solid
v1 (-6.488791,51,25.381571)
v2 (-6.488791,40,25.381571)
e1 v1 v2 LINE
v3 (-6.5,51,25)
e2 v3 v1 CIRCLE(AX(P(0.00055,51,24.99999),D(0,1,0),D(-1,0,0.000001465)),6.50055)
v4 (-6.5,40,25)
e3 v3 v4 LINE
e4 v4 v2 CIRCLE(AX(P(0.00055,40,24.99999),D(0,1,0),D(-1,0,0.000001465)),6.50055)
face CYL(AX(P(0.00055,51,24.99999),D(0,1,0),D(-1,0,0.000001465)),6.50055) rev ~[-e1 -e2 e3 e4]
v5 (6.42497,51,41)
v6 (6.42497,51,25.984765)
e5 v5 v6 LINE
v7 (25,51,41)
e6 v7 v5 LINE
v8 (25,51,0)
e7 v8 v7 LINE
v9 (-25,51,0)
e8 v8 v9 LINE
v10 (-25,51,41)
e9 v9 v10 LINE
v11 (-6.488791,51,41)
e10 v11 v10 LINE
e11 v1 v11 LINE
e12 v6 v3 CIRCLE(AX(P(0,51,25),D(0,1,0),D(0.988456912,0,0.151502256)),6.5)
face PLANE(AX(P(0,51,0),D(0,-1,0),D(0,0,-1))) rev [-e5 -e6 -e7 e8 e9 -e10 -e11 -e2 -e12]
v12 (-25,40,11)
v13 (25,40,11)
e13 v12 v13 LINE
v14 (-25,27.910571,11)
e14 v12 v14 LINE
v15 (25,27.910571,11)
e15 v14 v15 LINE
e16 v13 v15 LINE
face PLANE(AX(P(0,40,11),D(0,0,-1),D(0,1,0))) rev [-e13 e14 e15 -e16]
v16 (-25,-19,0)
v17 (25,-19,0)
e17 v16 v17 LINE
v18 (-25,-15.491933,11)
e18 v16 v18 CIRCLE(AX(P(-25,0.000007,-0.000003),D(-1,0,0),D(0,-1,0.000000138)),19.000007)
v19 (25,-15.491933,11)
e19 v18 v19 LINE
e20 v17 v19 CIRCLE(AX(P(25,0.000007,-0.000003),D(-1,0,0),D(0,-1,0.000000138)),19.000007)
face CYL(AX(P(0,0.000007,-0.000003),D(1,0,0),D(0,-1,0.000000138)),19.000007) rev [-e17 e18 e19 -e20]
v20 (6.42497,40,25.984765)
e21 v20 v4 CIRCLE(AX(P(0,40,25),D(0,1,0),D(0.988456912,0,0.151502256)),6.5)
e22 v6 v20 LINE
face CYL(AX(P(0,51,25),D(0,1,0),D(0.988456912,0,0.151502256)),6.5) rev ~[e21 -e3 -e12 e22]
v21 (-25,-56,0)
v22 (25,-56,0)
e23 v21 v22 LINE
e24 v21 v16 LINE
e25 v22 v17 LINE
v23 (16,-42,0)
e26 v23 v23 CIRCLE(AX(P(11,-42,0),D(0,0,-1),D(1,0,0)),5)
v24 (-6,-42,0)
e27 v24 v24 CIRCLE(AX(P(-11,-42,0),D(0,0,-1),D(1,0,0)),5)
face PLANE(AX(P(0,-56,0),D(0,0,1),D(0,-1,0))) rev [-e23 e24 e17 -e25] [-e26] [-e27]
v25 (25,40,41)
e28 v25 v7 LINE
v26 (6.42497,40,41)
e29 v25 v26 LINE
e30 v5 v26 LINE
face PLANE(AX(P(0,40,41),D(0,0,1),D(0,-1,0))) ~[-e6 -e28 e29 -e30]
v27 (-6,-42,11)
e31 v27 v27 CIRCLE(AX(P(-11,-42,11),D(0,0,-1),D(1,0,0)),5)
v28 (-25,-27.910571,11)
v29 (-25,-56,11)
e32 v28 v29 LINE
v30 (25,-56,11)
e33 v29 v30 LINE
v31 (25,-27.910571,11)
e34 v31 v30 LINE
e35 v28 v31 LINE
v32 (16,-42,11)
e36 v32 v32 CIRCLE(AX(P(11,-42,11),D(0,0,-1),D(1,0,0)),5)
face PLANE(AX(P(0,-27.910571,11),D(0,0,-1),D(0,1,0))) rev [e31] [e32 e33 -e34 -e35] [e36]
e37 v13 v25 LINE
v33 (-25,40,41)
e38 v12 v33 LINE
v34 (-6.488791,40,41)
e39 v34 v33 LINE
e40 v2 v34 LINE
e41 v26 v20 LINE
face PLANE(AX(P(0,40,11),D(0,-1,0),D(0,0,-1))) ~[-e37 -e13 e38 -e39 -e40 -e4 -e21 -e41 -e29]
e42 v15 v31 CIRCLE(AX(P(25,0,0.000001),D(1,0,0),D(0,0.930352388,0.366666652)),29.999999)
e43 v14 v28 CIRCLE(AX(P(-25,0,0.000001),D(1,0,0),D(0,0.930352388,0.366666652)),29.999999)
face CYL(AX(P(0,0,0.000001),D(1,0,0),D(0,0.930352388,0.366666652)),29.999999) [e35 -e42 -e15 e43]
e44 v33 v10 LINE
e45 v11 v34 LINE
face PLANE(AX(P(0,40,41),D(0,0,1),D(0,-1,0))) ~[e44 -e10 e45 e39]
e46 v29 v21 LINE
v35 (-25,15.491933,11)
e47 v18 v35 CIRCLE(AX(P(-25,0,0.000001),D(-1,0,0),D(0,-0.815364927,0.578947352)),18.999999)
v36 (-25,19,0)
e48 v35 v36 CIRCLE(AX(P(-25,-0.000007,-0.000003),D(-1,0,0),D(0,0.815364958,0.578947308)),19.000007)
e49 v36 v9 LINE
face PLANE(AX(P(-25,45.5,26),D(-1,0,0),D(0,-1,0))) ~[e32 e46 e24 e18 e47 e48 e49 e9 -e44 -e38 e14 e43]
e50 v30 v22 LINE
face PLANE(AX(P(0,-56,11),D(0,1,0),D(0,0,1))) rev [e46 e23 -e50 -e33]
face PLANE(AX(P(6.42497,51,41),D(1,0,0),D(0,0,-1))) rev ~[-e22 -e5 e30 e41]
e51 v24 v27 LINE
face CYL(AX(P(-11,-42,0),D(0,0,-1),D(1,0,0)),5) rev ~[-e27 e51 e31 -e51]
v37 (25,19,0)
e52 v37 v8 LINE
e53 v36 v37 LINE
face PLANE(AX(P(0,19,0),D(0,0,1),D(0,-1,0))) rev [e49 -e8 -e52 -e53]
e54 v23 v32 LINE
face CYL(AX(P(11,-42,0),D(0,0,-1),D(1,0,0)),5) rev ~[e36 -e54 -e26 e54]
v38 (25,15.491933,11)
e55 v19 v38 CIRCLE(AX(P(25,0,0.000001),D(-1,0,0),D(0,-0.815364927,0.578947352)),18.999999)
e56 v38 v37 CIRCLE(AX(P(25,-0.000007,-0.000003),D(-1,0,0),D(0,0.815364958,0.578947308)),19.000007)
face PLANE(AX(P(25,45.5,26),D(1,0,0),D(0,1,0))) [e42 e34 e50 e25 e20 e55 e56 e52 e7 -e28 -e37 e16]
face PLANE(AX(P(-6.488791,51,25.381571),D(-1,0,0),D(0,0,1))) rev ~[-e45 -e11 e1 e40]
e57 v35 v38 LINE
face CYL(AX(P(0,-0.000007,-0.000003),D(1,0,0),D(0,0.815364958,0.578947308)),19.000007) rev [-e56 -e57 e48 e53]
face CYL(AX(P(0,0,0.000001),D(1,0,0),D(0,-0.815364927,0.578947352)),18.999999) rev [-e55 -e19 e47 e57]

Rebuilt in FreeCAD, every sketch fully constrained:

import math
import FreeCAD as App
import Part
import Sketcher
from FreeCAD import Vector
Q = App.Units.Quantity

doc = App.newDocument("Part")
body = doc.addObject("PartDesign::Body", "Body")

sketch1 = body.newObject("Sketcher::SketchObject", "Sketch")
sketch1.AttachmentSupport = (doc.getObject("YZ_Plane"), [""])
sketch1.MapMode = "FlatFace"
sketch1.addGeometry([
    Part.LineSegment(Vector(40, 41, 0), Vector(40, 11, 0)),
    Part.LineSegment(Vector(40, 11, 0), Vector(27.910571, 11, 0)),
    Part.ArcOfCircle(Part.Circle(Vector(0, 0.000001, 0), Vector(0, 0, 1), 29.999999), math.radians(21.510187), math.radians(158.489813)),
    Part.LineSegment(Vector(-27.910571, 11, 0), Vector(-56, 11, 0)),
    Part.LineSegment(Vector(-56, 11, 0), Vector(-56, 0, 0)),
    Part.LineSegment(Vector(-56, 0, 0), Vector(-19, 0, 0)),
    Part.ArcOfCircle(Part.Circle(Vector(0.000007, -0.000003, 0), Vector(0, 0, 1), 19.000007), math.radians(144.623464), math.radians(179.999992)),
    Part.ArcOfCircle(Part.Circle(Vector(0, 0.000001, 0), Vector(0, 0, 1), 18.999999), math.radians(35.376539), math.radians(144.623461)),
    Part.ArcOfCircle(Part.Circle(Vector(-0.000007, -0.000003, 0), Vector(0, 0, 1), 19.000007), math.radians(0.000008), math.radians(35.376536)),
    Part.LineSegment(Vector(19, 0, 0), Vector(51, 0, 0)),
    Part.LineSegment(Vector(51, 0, 0), Vector(51, 41, 0)),
    Part.LineSegment(Vector(51, 41, 0), Vector(40, 41, 0)),
], False)
sketch1.addConstraint([
    Sketcher.Constraint("Coincident", 0, 2, 1, 1),
    Sketcher.Constraint("Coincident", 1, 2, 2, 1),
    Sketcher.Constraint("Coincident", 2, 2, 3, 1),
    Sketcher.Constraint("Coincident", 3, 2, 4, 1),
    Sketcher.Constraint("Coincident", 4, 2, 5, 1),
    Sketcher.Constraint("Coincident", 5, 2, 6, 2),
    Sketcher.Constraint("Tangent", 6, 1, 7, 2),
    Sketcher.Constraint("Tangent", 7, 1, 8, 2),
    Sketcher.Constraint("Coincident", 8, 1, 9, 1),
    Sketcher.Constraint("Coincident", 9, 2, 10, 1),
    Sketcher.Constraint("Coincident", 10, 2, 11, 1),
    Sketcher.Constraint("Coincident", 11, 2, 0, 1),
    Sketcher.Constraint("Vertical", 0),
    Sketcher.Constraint("Horizontal", 1),
    Sketcher.Constraint("Horizontal", 3),
    Sketcher.Constraint("Vertical", 4),
    Sketcher.Constraint("Horizontal", 5),
    Sketcher.Constraint("Horizontal", 9),
    Sketcher.Constraint("Vertical", 10),
    Sketcher.Constraint("Horizontal", 11),
    Sketcher.Constraint("Coincident", 2, 3, -1, 1),
    Sketcher.Constraint("Coincident", 6, 3, -1, 1),
    Sketcher.Constraint("Coincident", 8, 3, -1, 1),
    Sketcher.Constraint("PointOnObject", 4, 2, -1),
    Sketcher.Constraint("PointOnObject", 8, 1, -1),
    Sketcher.Constraint("Horizontal", 1, 2, 2, 2),
    Sketcher.Constraint("Horizontal", 3, 2, 6, 1),
    Sketcher.Constraint("Horizontal", 6, 1, 7, 1),
    Sketcher.Constraint("Equal", 11, 4),
    Sketcher.Constraint("Radius", 2, Q("29.999999 mm")),
    Sketcher.Constraint("Radius", 7, Q("18.999999 mm")),
    Sketcher.Constraint("DistanceX", 5, 1, 5, 2, Q("37 mm")),
    Sketcher.Constraint("DistanceX", 9, 1, 9, 2, Q("32 mm")),
    Sketcher.Constraint("DistanceX", 11, 2, 11, 1, Q("11 mm")),
    Sketcher.Constraint("DistanceY", 0, 2, 0, 1, Q("30 mm")),
])
pad1 = body.newObject("PartDesign::Pad", "Pad")
pad1.Profile = sketch1
pad1.Length = 25
body2 = doc.addObject("PartDesign::Body", "Body001")
doc.recompute()

body2.BaseFeature = body
doc.recompute()

mirroring = doc.addObject("Part::Mirroring", "Mirroring")
mirroring.Source = body
mirroring.Base = Vector(0, 7.065058, 14.616271)
mirroring.Normal = Vector(-1, 0, 0)
body3 = doc.addObject("PartDesign::Body", "Body002")
body3.BaseFeature = mirroring
boolean = body2.newObject("PartDesign::Boolean", "Boolean")
boolean.Type = "Fuse"
boolean.addObjects([body3])
doc.recompute()

sketch2 = body2.newObject("Sketcher::SketchObject", "Sketch001")
sketch2.AttachmentSupport = (doc.getObject("XZ_Plane001"), [""])
sketch2.MapMode = "FlatFace"
sketch2.AttachmentOffset = App.Placement(Vector(0, 0, -51), App.Rotation())
sketch2.addGeometry([
    Part.ArcOfCircle(Part.Circle(Vector(0, 25, 0), Vector(0, 0, 1), 6.5), math.radians(-179.999997), math.radians(8.713995)),
    Part.ArcOfCircle(Part.Circle(Vector(0.00055, 24.99999, 0), Vector(0, 0, 1), 6.50055), math.radians(176.634819), math.radians(179.999916)),
    Part.LineSegment(Vector(-6.488791, 25.381571, 0), Vector(-6.488791, 41, 0)),
    Part.LineSegment(Vector(-6.488791, 41, 0), Vector(6.42497, 41, 0)),
    Part.LineSegment(Vector(6.42497, 41, 0), Vector(6.42497, 25.984765, 0)),
], False)
sketch2.addConstraint([
    Sketcher.Constraint("Tangent", 0, 1, 1, 2),
    Sketcher.Constraint("Coincident", 1, 1, 2, 1),
    Sketcher.Constraint("Coincident", 2, 2, 3, 1),
    Sketcher.Constraint("Coincident", 3, 2, 4, 1),
    Sketcher.Constraint("Coincident", 4, 2, 0, 2),
    Sketcher.Constraint("Vertical", 2),
    Sketcher.Constraint("Horizontal", 3),
    Sketcher.Constraint("Vertical", 4),
    Sketcher.Constraint("PointOnObject", 0, 3, -2),
    Sketcher.Constraint("Radius", 0, Q("6.5 mm")),
    Sketcher.Constraint("DistanceY", -1, 1, 0, 3, Q("25 mm")),
    Sketcher.Constraint("DistanceY", -1, 1, 0, 1, Q("25 mm")),
    Sketcher.Constraint("DistanceY", -1, 1, 2, 2, Q("41 mm")),
    Sketcher.Constraint("Radius", 1, Q("6.50055 mm")),
    Sketcher.Constraint("DistanceX", 3, 1, 3, 2, Q("12.913761 mm")),
    Sketcher.Constraint("DistanceY", 2, 1, 2, 2, Q("15.618429 mm")),
])
pocket1 = body2.newObject("PartDesign::Pocket", "Pocket")
pocket1.Profile = sketch2
pocket1.Length = 11
pocket1.Reversed = True

sketch3 = body2.newObject("Sketcher::SketchObject", "Sketch002")
sketch3.AttachmentSupport = (doc.getObject("XY_Plane001"), [""])
sketch3.MapMode = "FlatFace"
sketch3.addGeometry([
    Part.Circle(Vector(-11, -42, 0), Vector(0, 0, 1), 5),
    Part.Circle(Vector(11, -42, 0), Vector(0, 0, 1), 5),
], False)
sketch3.addConstraint([
    Sketcher.Constraint("Equal", 0, 1),
    Sketcher.Constraint("Symmetric", 0, 3, 1, 3, -2),
    Sketcher.Constraint("Diameter", 0, Q("10 mm")),
    Sketcher.Constraint("DistanceX", 0, 3, -1, 1, Q("11 mm")),
    Sketcher.Constraint("DistanceY", 0, 3, -1, 1, Q("42 mm")),
])
pocket2 = body2.newObject("PartDesign::Pocket", "Pocket001")
pocket2.Profile = sketch3
pocket2.Length = 11
pocket2.Reversed = True
mirroring.Visibility = False

doc.recompute()
